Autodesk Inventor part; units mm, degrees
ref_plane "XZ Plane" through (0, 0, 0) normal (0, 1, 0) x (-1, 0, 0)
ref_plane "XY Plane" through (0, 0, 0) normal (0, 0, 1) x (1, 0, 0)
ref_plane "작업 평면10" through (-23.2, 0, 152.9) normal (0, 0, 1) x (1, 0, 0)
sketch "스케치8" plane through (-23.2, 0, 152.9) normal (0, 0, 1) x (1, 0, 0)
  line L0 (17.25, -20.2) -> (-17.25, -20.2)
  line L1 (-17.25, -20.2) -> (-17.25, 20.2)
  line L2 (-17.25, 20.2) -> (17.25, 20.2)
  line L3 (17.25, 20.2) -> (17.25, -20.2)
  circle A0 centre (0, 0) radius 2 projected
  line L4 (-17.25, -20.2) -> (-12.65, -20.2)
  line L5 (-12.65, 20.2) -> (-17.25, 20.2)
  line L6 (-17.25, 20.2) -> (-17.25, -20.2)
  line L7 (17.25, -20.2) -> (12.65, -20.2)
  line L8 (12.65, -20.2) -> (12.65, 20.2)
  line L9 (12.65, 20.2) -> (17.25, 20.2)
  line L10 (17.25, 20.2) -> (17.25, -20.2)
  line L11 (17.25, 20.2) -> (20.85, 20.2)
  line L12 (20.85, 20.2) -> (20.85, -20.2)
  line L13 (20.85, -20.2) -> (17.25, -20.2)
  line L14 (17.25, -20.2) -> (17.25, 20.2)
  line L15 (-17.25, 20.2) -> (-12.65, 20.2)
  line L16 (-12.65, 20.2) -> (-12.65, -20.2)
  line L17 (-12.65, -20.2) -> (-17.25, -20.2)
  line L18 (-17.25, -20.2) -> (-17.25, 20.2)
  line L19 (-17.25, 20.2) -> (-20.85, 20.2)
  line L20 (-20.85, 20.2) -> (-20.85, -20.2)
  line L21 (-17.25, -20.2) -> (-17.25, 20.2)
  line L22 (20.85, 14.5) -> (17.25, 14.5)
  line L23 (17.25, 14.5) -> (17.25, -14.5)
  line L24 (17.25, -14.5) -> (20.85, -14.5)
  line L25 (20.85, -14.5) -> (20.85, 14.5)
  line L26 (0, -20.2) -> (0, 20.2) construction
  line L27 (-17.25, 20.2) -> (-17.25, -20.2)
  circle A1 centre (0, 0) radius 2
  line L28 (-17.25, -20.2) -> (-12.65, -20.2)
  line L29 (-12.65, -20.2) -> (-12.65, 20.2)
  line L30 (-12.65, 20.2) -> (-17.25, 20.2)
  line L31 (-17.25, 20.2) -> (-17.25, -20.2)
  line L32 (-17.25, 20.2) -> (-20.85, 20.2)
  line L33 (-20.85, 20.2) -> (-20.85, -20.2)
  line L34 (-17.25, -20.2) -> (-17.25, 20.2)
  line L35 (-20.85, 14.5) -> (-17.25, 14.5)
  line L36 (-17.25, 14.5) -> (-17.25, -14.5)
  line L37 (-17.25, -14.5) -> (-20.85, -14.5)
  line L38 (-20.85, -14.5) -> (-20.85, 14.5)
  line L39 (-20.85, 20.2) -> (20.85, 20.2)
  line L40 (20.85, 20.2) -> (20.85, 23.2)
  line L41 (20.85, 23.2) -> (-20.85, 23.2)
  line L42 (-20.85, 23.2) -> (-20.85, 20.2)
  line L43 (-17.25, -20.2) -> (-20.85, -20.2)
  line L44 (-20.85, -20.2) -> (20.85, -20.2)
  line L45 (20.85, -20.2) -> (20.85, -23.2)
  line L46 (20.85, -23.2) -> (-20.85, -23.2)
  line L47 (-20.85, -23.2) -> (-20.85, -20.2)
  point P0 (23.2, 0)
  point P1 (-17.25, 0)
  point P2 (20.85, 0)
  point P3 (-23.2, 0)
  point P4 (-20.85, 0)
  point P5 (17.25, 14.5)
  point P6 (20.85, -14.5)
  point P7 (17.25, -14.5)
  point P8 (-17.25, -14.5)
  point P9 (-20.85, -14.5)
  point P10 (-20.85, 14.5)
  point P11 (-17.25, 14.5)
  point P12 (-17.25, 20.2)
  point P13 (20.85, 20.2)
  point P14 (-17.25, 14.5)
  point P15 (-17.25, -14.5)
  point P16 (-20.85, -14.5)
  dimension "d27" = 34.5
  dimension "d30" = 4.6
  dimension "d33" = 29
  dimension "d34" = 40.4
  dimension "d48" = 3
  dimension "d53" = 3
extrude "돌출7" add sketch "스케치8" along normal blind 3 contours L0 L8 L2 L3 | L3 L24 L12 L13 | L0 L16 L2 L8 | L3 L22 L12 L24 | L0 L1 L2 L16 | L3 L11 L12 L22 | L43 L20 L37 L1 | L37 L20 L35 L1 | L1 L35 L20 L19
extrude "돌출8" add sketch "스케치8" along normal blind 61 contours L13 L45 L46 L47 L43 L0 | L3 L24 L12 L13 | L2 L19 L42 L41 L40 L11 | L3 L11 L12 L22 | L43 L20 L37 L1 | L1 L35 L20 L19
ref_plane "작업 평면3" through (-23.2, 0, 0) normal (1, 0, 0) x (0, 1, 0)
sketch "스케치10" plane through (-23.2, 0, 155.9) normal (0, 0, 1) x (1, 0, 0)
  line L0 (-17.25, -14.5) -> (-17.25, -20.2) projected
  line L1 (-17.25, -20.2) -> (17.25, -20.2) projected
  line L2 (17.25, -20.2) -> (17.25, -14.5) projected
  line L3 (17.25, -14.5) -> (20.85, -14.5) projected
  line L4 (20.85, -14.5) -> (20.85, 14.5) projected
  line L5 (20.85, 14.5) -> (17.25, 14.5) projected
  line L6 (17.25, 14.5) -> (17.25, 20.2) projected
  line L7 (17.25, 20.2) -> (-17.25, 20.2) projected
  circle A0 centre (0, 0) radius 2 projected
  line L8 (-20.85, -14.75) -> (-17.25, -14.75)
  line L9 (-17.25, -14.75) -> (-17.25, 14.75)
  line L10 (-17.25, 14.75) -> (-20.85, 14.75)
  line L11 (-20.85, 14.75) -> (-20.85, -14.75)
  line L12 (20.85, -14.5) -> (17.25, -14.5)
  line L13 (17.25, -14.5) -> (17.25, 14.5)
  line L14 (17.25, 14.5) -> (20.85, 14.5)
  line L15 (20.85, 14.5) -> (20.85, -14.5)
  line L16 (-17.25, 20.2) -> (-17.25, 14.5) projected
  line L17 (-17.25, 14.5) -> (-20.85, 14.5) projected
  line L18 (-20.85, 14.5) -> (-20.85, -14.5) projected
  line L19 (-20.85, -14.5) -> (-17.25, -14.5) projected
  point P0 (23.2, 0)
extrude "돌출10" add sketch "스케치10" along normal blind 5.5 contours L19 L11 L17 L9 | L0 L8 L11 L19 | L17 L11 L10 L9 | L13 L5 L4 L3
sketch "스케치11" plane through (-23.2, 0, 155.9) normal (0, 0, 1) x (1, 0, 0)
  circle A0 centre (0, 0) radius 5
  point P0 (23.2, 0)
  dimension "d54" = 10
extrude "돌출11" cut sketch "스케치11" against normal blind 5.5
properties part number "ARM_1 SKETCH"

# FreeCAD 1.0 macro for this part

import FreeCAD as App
import Part
import Sketcher

V = App.Vector


def add_polygon(sketch, points):
    """Adds a closed chain of lines whose ends are joined by coincident constraints."""
    first, n = sketch.GeometryCount, len(points)
    for a, b in zip(points, points[1:] + points[:1]):
        sketch.addGeometry(Part.LineSegment(App.Vector(*a, 0), App.Vector(*b, 0)), False)
    for i in range(n):
        sketch.addConstraint(Sketcher.Constraint("Coincident", first + i, 2, first + (i + 1) % n, 1))

doc = App.newDocument("Part")
body = doc.addObject("PartDesign::Body", "Body")

# Sketch on XY plane
sketch1 = body.newObject("Sketcher::SketchObject", "Sketch")
sketch1.AttachmentSupport = (doc.getObject("XY_Plane"), [""])
sketch1.MapMode = "FlatFace"
sketch1.AttachmentOffset = App.Placement(V(0, 0, 152.9), App.Rotation())
add_polygon(sketch1, [(-2.4, -20.2), (-2.4, 20.2), (-44, 20.2), (-44, -20.2)])  # lines 0-3
sketch1.addGeometry(Part.Circle(V(-23.2, 0, 0), V(0, 0, 1), 2), False)  # 4
sketch1.addConstraint([
    Sketcher.Constraint("Vertical", 0),
    Sketcher.Constraint("Horizontal", 1),
    Sketcher.Constraint("Vertical", 2),
    Sketcher.Constraint("Horizontal", 3),
    Sketcher.Constraint("PointOnObject", 4, 3, -1),
    Sketcher.Constraint("Diameter", 4, 4.0),
    Sketcher.Constraint("DistanceY", 0, 1, 0, 2, 40.4),
    Sketcher.Constraint("DistanceX", 1, 2, 1, 1, 41.7),
    Sketcher.Constraint("DistanceX", 4, 3, -1, 1, 23.2),
    Sketcher.Constraint("DistanceY", -1, 1, 0, 2, 20.2),
    Sketcher.Constraint("DistanceX", 0, 2, -1, 1, 2.35),
])
pad1 = body.newObject("PartDesign::Pad", "Pad")
pad1.Profile = sketch1
pad1.Length = 3

# Sketch on XY plane
sketch2 = body.newObject("Sketcher::SketchObject", "Sketch001")
sketch2.AttachmentSupport = (doc.getObject("XY_Plane"), [""])
sketch2.MapMode = "FlatFace"
sketch2.AttachmentOffset = App.Placement(V(0, 0, 152.9), App.Rotation())
add_polygon(sketch2, [(-2.4, -23.2), (-2.4, -14.5), (-6, -14.5), (-6, -20.2), (-40.5, -20.2), (-40.5, -14.5), (-44, -14.5), (-44, -23.2)])  # lines 0-7
add_polygon(sketch2, [(-6, 20.2), (-6, 14.5), (-2.4, 14.5), (-2.4, 23.2), (-44, 23.2), (-44, 14.5), (-40.5, 14.5), (-40.5, 20.2)])  # lines 8-15
sketch2.addConstraint([
    Sketcher.Constraint("Vertical", 0),
    Sketcher.Constraint("Horizontal", 1),
    Sketcher.Constraint("Vertical", 2),
    Sketcher.Constraint("Horizontal", 3),
    Sketcher.Constraint("Vertical", 4),
    Sketcher.Constraint("Horizontal", 5),
    Sketcher.Constraint("Vertical", 6),
    Sketcher.Constraint("Horizontal", 7),
    Sketcher.Constraint("Vertical", 8),
    Sketcher.Constraint("Horizontal", 9),
    Sketcher.Constraint("Vertical", 10),
    Sketcher.Constraint("Horizontal", 11),
    Sketcher.Constraint("Vertical", 12),
    Sketcher.Constraint("Horizontal", 13),
    Sketcher.Constraint("Vertical", 14),
    Sketcher.Constraint("Horizontal", 15),
    Sketcher.Constraint("Symmetric", 1, 2, 8, 2, -1),
    Sketcher.Constraint("Symmetric", 7, 2, 10, 2, -1),
    Sketcher.Constraint("Symmetric", 5, 2, 12, 2, -1),
    Sketcher.Constraint("Symmetric", 3, 2, 14, 2, -1),
    Sketcher.Constraint("Horizontal", 1, 2, 4, 2),
    Sketcher.Constraint("Equal", 1, 5),
    Sketcher.Constraint("DistanceX", 3, 2, 3, 1, 34.5),
    Sketcher.Constraint("DistanceY", 6, 2, 3, 2, 3.0),
    Sketcher.Constraint("DistanceY", 1, 2, 8, 2, 29.0),
    Sketcher.Constraint("DistanceX", 1, 2, 1, 1, 3.6),
    Sketcher.Constraint("DistanceY", 0, 1, 0, 2, 8.7),
    Sketcher.Constraint("DistanceX", 0, 2, -1, 1, 2.35),
])
pad2 = body.newObject("PartDesign::Pad", "Pad001")
pad2.Profile = sketch2
pad2.Length = 61

# Sketch on XY plane
sketch3 = body.newObject("Sketcher::SketchObject", "Sketch002")
sketch3.AttachmentSupport = (doc.getObject("XY_Plane"), [""])
sketch3.MapMode = "FlatFace"
sketch3.AttachmentOffset = App.Placement(V(0, 0, 155.9), App.Rotation())
add_polygon(sketch3, [(-44, -14.8), (-40.5, -14.8), (-40.5, 14.8), (-44, 14.8)])  # lines 0-3
add_polygon(sketch3, [(-6, 14.5), (-6, -14.5), (-2.4, -14.5), (-2.4, 14.5)])  # lines 4-7
sketch3.addConstraint([
    Sketcher.Constraint("Horizontal", 0),
    Sketcher.Constraint("Vertical", 1),
    Sketcher.Constraint("Horizontal", 2),
    Sketcher.Constraint("Vertical", 3),
    Sketcher.Constraint("Vertical", 4),
    Sketcher.Constraint("Horizontal", 5),
    Sketcher.Constraint("Vertical", 6),
    Sketcher.Constraint("Horizontal", 7),
    Sketcher.Constraint("Equal", 2, 5),
    Sketcher.Constraint("DistanceY", 4, 2, 4, 1, 29.0),
    Sketcher.Constraint("DistanceX", 0, 1, 0, 2, 3.6),
    Sketcher.Constraint("DistanceY", 1, 1, 1, 2, 29.5),
    Sketcher.Constraint("DistanceY", 4, 2, -1, 1, 14.5),
    Sketcher.Constraint("DistanceX", 0, 2, 4, 2, 34.5),
    Sketcher.Constraint("DistanceX", 0, 2, -1, 1, 40.45),
    Sketcher.Constraint("DistanceY", 0, 2, -1, 1, 14.75),
])
pad3 = body.newObject("PartDesign::Pad", "Pad002")
pad3.Profile = sketch3
pad3.Length = 5.5

# Sketch on XY plane
sketch4 = body.newObject("Sketcher::SketchObject", "Sketch003")
sketch4.AttachmentSupport = (doc.getObject("XY_Plane"), [""])
sketch4.MapMode = "FlatFace"
sketch4.AttachmentOffset = App.Placement(V(0, 0, 155.9), App.Rotation())
sketch4.addGeometry(Part.Circle(V(-23, 0, 0), V(0, 0, 1), 5), False)
sketch4.addConstraint([
    Sketcher.Constraint("PointOnObject", 0, 3, -1),
    Sketcher.Constraint("Diameter", 0, 10.0),
    Sketcher.Constraint("DistanceX", 0, 3, -1, 1, 23.2),
])
pocket1 = body.newObject("PartDesign::Pocket", "Pocket")
pocket1.Profile = sketch4
pocket1.Length = 5.5

doc.recompute()
